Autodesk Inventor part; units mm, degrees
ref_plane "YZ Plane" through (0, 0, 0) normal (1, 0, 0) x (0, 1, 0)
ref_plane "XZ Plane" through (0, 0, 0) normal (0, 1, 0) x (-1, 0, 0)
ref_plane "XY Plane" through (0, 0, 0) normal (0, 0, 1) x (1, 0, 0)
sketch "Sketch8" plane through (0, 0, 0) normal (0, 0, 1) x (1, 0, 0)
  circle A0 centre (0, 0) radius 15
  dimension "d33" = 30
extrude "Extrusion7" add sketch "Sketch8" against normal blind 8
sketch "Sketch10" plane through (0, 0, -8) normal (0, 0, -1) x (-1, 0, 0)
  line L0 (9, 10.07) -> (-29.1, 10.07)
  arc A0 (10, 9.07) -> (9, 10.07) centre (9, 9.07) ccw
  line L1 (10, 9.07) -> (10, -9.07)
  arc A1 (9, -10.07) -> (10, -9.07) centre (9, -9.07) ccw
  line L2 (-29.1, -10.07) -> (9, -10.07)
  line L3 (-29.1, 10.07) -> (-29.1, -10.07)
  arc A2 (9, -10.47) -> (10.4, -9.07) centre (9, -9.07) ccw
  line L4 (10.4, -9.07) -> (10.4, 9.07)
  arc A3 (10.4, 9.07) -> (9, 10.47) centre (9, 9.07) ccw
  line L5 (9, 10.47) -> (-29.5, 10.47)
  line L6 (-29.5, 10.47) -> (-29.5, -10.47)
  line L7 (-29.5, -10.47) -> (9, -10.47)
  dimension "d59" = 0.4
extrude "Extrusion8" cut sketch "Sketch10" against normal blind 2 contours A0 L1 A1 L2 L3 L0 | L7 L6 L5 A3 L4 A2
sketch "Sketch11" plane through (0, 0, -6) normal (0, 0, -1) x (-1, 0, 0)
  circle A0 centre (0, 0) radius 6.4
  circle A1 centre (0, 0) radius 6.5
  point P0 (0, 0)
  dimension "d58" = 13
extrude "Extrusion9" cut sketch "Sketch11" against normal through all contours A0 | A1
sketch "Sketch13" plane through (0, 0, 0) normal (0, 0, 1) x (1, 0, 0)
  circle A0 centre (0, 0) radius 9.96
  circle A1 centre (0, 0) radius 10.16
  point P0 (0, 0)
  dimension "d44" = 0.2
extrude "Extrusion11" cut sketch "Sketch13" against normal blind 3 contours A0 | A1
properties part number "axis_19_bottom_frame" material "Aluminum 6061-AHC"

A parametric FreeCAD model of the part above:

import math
import FreeCAD as App
import Part
import Sketcher

doc = App.newDocument("Part")
body = doc.addObject("PartDesign::Body", "Body")

# Sketch on XY plane
sketch1 = body.newObject("Sketcher::SketchObject", "Sketch")
sketch1.AttachmentSupport = (doc.getObject("XY_Plane"), [""])
sketch1.MapMode = "FlatFace"
sketch1.addGeometry(Part.Circle(App.Vector(0, 0, 0), App.Vector(0, 0, 1), 15), False)
sketch1.addConstraint(Sketcher.Constraint("Coincident", 0, 3, -1, 1))
sketch1.addConstraint(Sketcher.Constraint("Diameter", 0, 30.0))
pad1 = body.newObject("PartDesign::Pad", "Pad")
pad1.Profile = sketch1
pad1.Length = 8
pad1.Reversed = True

# Sketch on XY plane
sketch2 = body.newObject("Sketcher::SketchObject", "Sketch001")
sketch2.AttachmentSupport = (doc.getObject("XY_Plane"), [""])
sketch2.MapMode = "FlatFace"
sketch2.AttachmentOffset = App.Placement(App.Vector(0, 0, -8), App.Rotation())
sketch2.addGeometry(Part.LineSegment(App.Vector(29.5, -10.5, 0), App.Vector(-9, -10.5, 0)), False)
sketch2.addGeometry(Part.ArcOfCircle(Part.Circle(App.Vector(-9, -9.1, 0), App.Vector(0, 0, 1), 1.4), math.radians(180), math.radians(270)), False)
sketch2.addGeometry(Part.LineSegment(App.Vector(-10.4, -9.1, 0), App.Vector(-10.4, 9.1, 0)), False)
sketch2.addGeometry(Part.ArcOfCircle(Part.Circle(App.Vector(-9, 9.1, 0), App.Vector(0, 0, 1), 1.4), math.radians(90), math.radians(180)), False)
sketch2.addGeometry(Part.LineSegment(App.Vector(-9, 10.5, 0), App.Vector(29.5, 10.5, 0)), False)
sketch2.addGeometry(Part.LineSegment(App.Vector(29.5, 10.5, 0), App.Vector(29.5, -10.5, 0)), False)
sketch2.addConstraint(Sketcher.Constraint("Tangent", 0, 2, 1, 2))
sketch2.addConstraint(Sketcher.Constraint("Tangent", 1, 1, 2, 1))
sketch2.addConstraint(Sketcher.Constraint("Tangent", 2, 2, 3, 2))
sketch2.addConstraint(Sketcher.Constraint("Tangent", 3, 1, 4, 1))
sketch2.addConstraint(Sketcher.Constraint("Coincident", 4, 2, 5, 1))
sketch2.addConstraint(Sketcher.Constraint("Coincident", 5, 2, 0, 1))
sketch2.addConstraint(Sketcher.Constraint("Horizontal", 0))
sketch2.addConstraint(Sketcher.Constraint("Vertical", 2))
sketch2.addConstraint(Sketcher.Constraint("Horizontal", 4))
sketch2.addConstraint(Sketcher.Constraint("Vertical", 5))
sketch2.addConstraint(Sketcher.Constraint("Equal", 1, 3))
sketch2.addConstraint(Sketcher.Constraint("Radius", 1, 1.4))
sketch2.addConstraint(Sketcher.Constraint("DistanceX", 0, 2, 0, 1, 38.5))
sketch2.addConstraint(Sketcher.Constraint("DistanceX", 1, 3, -1, 1, 9.0))
sketch2.addConstraint(Sketcher.Constraint("DistanceY", 2, 1, 2, 2, 18.14))
sketch2.addConstraint(Sketcher.Constraint("DistanceY", 1, 3, -1, 1, 9.07))
pocket1 = body.newObject("PartDesign::Pocket", "Pocket")
pocket1.Profile = sketch2
pocket1.Length = 2
pocket1.Reversed = True

# Sketch on XY plane
sketch3 = body.newObject("Sketcher::SketchObject", "Sketch002")
sketch3.AttachmentSupport = (doc.getObject("XY_Plane"), [""])
sketch3.MapMode = "FlatFace"
sketch3.AttachmentOffset = App.Placement(App.Vector(0, 0, -6), App.Rotation())
sketch3.addGeometry(Part.Circle(App.Vector(0, 0, 0), App.Vector(0, 0, 1), 6), False)
sketch3.addConstraint(Sketcher.Constraint("Coincident", 0, 3, -1, 1))
sketch3.addConstraint(Sketcher.Constraint("Diameter", 0, 13.0))
pocket2 = body.newObject("PartDesign::Pocket", "Pocket001")
pocket2.Profile = sketch3
pocket2.Type = "ThroughAll"
pocket2.Reversed = True

# Sketch on XY plane
sketch4 = body.newObject("Sketcher::SketchObject", "Sketch003")
sketch4.AttachmentSupport = (doc.getObject("XY_Plane"), [""])
sketch4.MapMode = "FlatFace"
sketch4.addGeometry(Part.Circle(App.Vector(0, 0, 0), App.Vector(0, 0, 1), 10), False)
sketch4.addConstraint(Sketcher.Constraint("Coincident", 0, 3, -1, 1))
sketch4.addConstraint(Sketcher.Constraint("Diameter", 0, 20.32))
pocket3 = body.newObject("PartDesign::Pocket", "Pocket002")
pocket3.Profile = sketch4
pocket3.Length = 3

doc.recompute()
